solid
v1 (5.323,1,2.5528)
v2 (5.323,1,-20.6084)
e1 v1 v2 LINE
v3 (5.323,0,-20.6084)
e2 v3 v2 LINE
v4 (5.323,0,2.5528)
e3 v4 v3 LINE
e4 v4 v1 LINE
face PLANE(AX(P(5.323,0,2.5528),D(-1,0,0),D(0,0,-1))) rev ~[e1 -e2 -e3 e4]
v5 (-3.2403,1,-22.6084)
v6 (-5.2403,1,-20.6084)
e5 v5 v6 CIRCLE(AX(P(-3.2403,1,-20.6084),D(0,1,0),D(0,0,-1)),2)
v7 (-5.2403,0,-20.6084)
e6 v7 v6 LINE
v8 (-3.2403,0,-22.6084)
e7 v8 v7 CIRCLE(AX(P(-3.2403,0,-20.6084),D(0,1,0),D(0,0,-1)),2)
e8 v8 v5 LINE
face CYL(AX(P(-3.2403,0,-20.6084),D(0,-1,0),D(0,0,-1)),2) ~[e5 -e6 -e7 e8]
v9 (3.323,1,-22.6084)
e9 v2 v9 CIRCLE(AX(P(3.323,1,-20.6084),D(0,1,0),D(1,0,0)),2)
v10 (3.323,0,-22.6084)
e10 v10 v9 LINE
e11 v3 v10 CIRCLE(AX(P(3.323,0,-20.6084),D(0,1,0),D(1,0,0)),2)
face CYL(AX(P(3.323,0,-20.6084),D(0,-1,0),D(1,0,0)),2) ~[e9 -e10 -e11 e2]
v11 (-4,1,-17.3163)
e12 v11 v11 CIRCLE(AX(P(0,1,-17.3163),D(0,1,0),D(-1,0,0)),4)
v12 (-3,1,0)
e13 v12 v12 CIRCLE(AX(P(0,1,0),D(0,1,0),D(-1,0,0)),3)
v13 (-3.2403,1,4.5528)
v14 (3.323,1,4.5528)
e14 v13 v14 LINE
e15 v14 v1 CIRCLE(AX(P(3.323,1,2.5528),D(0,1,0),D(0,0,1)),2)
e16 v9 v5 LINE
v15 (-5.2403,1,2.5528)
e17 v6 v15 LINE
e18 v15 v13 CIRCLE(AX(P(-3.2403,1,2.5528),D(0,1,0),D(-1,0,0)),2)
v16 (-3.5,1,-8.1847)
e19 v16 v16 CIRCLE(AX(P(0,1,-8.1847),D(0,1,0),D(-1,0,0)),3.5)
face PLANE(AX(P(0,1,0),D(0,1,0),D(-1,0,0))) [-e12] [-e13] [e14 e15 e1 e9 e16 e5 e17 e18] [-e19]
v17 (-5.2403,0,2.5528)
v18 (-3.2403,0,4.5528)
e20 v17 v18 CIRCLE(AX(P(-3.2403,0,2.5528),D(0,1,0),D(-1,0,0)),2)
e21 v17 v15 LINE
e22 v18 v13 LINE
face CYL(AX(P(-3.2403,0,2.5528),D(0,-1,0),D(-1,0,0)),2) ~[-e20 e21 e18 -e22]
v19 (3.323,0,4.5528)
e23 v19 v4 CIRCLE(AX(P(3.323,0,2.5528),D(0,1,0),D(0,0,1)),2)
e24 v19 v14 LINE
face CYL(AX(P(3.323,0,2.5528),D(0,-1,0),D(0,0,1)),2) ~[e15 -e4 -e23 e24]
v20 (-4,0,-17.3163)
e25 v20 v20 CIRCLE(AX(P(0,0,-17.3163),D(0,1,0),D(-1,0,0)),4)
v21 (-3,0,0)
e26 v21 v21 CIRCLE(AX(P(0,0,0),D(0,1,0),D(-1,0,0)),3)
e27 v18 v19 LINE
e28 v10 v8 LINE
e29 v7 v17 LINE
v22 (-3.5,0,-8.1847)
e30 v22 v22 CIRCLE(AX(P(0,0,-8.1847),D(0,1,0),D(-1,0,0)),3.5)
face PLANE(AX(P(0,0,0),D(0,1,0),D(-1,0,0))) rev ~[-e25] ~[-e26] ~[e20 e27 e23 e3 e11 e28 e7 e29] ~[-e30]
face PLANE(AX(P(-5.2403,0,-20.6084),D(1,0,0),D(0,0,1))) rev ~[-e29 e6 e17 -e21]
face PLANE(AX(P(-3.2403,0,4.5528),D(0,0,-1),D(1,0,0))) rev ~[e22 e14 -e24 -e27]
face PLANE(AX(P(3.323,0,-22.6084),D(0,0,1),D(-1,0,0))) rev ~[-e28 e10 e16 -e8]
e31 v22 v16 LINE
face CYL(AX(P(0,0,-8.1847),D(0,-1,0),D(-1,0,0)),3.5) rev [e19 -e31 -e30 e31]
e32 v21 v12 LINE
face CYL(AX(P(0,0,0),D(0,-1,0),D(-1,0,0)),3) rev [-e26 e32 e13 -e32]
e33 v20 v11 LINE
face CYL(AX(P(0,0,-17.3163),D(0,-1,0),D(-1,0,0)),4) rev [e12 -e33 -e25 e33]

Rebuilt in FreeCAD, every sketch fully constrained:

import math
import FreeCAD as App
import Part
import Sketcher

V = App.Vector

doc = App.newDocument("Part")
body = doc.addObject("PartDesign::Body", "Body")

# Sketch on XZ plane
sketch1 = body.newObject("Sketcher::SketchObject", "Sketch")
sketch1.AttachmentSupport = (doc.getObject("XZ_Plane"), [""])
sketch1.MapMode = "FlatFace"
sketch1.addGeometry(Part.ArcOfCircle(Part.Circle(V(-3.2, 2.6, 0), V(0, 0, 1), 2), math.radians(90), math.radians(180)), False)
sketch1.addGeometry(Part.LineSegment(V(-3.2, 4.6, 0), V(3.3, 4.6, 0)), False)
sketch1.addGeometry(Part.ArcOfCircle(Part.Circle(V(3.3, 2.6, 0), V(0, 0, 1), 2), math.radians(0), math.radians(90)), False)
sketch1.addGeometry(Part.LineSegment(V(5.3, 2.6, 0), V(5.3, -20.6, 0)), False)
sketch1.addGeometry(Part.ArcOfCircle(Part.Circle(V(3.3, -20.6, 0), V(0, 0, 1), 2), math.radians(-90), math.radians(0)), False)
sketch1.addGeometry(Part.LineSegment(V(3.3, -22.6, 0), V(-3.2, -22.6, 0)), False)
sketch1.addGeometry(Part.ArcOfCircle(Part.Circle(V(-3.2, -20.6, 0), V(0, 0, 1), 2), math.radians(180), math.radians(270)), False)
sketch1.addGeometry(Part.LineSegment(V(-5.2, -20.6, 0), V(-5.2, 2.6, 0)), False)
sketch1.addGeometry(Part.Circle(V(0, -17.3, 0), V(0, 0, 1), 4), False)
sketch1.addGeometry(Part.Circle(V(0, -8.2, 0), V(0, 0, 1), 3.5), False)
sketch1.addGeometry(Part.Circle(V(0, 0, 0), V(0, 0, 1), 3), False)
sketch1.addConstraint(Sketcher.Constraint("Tangent", 0, 1, 1, 1))
sketch1.addConstraint(Sketcher.Constraint("Tangent", 1, 2, 2, 2))
sketch1.addConstraint(Sketcher.Constraint("Tangent", 2, 1, 3, 1))
sketch1.addConstraint(Sketcher.Constraint("Tangent", 3, 2, 4, 2))
sketch1.addConstraint(Sketcher.Constraint("Tangent", 4, 1, 5, 1))
sketch1.addConstraint(Sketcher.Constraint("Tangent", 5, 2, 6, 2))
sketch1.addConstraint(Sketcher.Constraint("Tangent", 6, 1, 7, 1))
sketch1.addConstraint(Sketcher.Constraint("Tangent", 7, 2, 0, 2))
sketch1.addConstraint(Sketcher.Constraint("Horizontal", 1))
sketch1.addConstraint(Sketcher.Constraint("Vertical", 3))
sketch1.addConstraint(Sketcher.Constraint("Horizontal", 5))
sketch1.addConstraint(Sketcher.Constraint("Vertical", 7))
sketch1.addConstraint(Sketcher.Constraint("Coincident", 10, 3, -1, 1))
sketch1.addConstraint(Sketcher.Constraint("Equal", 0, 2))
sketch1.addConstraint(Sketcher.Constraint("Equal", 2, 4))
sketch1.addConstraint(Sketcher.Constraint("Equal", 4, 6))
sketch1.addConstraint(Sketcher.Constraint("PointOnObject", 8, 3, -2))
sketch1.addConstraint(Sketcher.Constraint("PointOnObject", 9, 3, -2))
sketch1.addConstraint(Sketcher.Constraint("Diameter", 8, 8.0))
sketch1.addConstraint(Sketcher.Constraint("Diameter", 9, 7.0))
sketch1.addConstraint(Sketcher.Constraint("Diameter", 10, 6.0))
sketch1.addConstraint(Sketcher.Constraint("Radius", 0, 2.0))
sketch1.addConstraint(Sketcher.Constraint("DistanceX", 1, 1, 1, 2, 6.5633))
sketch1.addConstraint(Sketcher.Constraint("DistanceY", 3, 2, 3, 1, 23.1612))
sketch1.addConstraint(Sketcher.Constraint("DistanceX", -1, 1, 2, 3, 3.323))
sketch1.addConstraint(Sketcher.Constraint("DistanceY", 6, 3, 8, 3, 3.292))
sketch1.addConstraint(Sketcher.Constraint("DistanceY", -1, 1, 0, 3, 2.5528))
sketch1.addConstraint(Sketcher.Constraint("DistanceY", 9, 3, -1, 1, 8.1847))
pad1 = body.newObject("PartDesign::Pad", "Pad")
pad1.Profile = sketch1
pad1.Length = 1
pad1.Reversed = True

doc.recompute()
